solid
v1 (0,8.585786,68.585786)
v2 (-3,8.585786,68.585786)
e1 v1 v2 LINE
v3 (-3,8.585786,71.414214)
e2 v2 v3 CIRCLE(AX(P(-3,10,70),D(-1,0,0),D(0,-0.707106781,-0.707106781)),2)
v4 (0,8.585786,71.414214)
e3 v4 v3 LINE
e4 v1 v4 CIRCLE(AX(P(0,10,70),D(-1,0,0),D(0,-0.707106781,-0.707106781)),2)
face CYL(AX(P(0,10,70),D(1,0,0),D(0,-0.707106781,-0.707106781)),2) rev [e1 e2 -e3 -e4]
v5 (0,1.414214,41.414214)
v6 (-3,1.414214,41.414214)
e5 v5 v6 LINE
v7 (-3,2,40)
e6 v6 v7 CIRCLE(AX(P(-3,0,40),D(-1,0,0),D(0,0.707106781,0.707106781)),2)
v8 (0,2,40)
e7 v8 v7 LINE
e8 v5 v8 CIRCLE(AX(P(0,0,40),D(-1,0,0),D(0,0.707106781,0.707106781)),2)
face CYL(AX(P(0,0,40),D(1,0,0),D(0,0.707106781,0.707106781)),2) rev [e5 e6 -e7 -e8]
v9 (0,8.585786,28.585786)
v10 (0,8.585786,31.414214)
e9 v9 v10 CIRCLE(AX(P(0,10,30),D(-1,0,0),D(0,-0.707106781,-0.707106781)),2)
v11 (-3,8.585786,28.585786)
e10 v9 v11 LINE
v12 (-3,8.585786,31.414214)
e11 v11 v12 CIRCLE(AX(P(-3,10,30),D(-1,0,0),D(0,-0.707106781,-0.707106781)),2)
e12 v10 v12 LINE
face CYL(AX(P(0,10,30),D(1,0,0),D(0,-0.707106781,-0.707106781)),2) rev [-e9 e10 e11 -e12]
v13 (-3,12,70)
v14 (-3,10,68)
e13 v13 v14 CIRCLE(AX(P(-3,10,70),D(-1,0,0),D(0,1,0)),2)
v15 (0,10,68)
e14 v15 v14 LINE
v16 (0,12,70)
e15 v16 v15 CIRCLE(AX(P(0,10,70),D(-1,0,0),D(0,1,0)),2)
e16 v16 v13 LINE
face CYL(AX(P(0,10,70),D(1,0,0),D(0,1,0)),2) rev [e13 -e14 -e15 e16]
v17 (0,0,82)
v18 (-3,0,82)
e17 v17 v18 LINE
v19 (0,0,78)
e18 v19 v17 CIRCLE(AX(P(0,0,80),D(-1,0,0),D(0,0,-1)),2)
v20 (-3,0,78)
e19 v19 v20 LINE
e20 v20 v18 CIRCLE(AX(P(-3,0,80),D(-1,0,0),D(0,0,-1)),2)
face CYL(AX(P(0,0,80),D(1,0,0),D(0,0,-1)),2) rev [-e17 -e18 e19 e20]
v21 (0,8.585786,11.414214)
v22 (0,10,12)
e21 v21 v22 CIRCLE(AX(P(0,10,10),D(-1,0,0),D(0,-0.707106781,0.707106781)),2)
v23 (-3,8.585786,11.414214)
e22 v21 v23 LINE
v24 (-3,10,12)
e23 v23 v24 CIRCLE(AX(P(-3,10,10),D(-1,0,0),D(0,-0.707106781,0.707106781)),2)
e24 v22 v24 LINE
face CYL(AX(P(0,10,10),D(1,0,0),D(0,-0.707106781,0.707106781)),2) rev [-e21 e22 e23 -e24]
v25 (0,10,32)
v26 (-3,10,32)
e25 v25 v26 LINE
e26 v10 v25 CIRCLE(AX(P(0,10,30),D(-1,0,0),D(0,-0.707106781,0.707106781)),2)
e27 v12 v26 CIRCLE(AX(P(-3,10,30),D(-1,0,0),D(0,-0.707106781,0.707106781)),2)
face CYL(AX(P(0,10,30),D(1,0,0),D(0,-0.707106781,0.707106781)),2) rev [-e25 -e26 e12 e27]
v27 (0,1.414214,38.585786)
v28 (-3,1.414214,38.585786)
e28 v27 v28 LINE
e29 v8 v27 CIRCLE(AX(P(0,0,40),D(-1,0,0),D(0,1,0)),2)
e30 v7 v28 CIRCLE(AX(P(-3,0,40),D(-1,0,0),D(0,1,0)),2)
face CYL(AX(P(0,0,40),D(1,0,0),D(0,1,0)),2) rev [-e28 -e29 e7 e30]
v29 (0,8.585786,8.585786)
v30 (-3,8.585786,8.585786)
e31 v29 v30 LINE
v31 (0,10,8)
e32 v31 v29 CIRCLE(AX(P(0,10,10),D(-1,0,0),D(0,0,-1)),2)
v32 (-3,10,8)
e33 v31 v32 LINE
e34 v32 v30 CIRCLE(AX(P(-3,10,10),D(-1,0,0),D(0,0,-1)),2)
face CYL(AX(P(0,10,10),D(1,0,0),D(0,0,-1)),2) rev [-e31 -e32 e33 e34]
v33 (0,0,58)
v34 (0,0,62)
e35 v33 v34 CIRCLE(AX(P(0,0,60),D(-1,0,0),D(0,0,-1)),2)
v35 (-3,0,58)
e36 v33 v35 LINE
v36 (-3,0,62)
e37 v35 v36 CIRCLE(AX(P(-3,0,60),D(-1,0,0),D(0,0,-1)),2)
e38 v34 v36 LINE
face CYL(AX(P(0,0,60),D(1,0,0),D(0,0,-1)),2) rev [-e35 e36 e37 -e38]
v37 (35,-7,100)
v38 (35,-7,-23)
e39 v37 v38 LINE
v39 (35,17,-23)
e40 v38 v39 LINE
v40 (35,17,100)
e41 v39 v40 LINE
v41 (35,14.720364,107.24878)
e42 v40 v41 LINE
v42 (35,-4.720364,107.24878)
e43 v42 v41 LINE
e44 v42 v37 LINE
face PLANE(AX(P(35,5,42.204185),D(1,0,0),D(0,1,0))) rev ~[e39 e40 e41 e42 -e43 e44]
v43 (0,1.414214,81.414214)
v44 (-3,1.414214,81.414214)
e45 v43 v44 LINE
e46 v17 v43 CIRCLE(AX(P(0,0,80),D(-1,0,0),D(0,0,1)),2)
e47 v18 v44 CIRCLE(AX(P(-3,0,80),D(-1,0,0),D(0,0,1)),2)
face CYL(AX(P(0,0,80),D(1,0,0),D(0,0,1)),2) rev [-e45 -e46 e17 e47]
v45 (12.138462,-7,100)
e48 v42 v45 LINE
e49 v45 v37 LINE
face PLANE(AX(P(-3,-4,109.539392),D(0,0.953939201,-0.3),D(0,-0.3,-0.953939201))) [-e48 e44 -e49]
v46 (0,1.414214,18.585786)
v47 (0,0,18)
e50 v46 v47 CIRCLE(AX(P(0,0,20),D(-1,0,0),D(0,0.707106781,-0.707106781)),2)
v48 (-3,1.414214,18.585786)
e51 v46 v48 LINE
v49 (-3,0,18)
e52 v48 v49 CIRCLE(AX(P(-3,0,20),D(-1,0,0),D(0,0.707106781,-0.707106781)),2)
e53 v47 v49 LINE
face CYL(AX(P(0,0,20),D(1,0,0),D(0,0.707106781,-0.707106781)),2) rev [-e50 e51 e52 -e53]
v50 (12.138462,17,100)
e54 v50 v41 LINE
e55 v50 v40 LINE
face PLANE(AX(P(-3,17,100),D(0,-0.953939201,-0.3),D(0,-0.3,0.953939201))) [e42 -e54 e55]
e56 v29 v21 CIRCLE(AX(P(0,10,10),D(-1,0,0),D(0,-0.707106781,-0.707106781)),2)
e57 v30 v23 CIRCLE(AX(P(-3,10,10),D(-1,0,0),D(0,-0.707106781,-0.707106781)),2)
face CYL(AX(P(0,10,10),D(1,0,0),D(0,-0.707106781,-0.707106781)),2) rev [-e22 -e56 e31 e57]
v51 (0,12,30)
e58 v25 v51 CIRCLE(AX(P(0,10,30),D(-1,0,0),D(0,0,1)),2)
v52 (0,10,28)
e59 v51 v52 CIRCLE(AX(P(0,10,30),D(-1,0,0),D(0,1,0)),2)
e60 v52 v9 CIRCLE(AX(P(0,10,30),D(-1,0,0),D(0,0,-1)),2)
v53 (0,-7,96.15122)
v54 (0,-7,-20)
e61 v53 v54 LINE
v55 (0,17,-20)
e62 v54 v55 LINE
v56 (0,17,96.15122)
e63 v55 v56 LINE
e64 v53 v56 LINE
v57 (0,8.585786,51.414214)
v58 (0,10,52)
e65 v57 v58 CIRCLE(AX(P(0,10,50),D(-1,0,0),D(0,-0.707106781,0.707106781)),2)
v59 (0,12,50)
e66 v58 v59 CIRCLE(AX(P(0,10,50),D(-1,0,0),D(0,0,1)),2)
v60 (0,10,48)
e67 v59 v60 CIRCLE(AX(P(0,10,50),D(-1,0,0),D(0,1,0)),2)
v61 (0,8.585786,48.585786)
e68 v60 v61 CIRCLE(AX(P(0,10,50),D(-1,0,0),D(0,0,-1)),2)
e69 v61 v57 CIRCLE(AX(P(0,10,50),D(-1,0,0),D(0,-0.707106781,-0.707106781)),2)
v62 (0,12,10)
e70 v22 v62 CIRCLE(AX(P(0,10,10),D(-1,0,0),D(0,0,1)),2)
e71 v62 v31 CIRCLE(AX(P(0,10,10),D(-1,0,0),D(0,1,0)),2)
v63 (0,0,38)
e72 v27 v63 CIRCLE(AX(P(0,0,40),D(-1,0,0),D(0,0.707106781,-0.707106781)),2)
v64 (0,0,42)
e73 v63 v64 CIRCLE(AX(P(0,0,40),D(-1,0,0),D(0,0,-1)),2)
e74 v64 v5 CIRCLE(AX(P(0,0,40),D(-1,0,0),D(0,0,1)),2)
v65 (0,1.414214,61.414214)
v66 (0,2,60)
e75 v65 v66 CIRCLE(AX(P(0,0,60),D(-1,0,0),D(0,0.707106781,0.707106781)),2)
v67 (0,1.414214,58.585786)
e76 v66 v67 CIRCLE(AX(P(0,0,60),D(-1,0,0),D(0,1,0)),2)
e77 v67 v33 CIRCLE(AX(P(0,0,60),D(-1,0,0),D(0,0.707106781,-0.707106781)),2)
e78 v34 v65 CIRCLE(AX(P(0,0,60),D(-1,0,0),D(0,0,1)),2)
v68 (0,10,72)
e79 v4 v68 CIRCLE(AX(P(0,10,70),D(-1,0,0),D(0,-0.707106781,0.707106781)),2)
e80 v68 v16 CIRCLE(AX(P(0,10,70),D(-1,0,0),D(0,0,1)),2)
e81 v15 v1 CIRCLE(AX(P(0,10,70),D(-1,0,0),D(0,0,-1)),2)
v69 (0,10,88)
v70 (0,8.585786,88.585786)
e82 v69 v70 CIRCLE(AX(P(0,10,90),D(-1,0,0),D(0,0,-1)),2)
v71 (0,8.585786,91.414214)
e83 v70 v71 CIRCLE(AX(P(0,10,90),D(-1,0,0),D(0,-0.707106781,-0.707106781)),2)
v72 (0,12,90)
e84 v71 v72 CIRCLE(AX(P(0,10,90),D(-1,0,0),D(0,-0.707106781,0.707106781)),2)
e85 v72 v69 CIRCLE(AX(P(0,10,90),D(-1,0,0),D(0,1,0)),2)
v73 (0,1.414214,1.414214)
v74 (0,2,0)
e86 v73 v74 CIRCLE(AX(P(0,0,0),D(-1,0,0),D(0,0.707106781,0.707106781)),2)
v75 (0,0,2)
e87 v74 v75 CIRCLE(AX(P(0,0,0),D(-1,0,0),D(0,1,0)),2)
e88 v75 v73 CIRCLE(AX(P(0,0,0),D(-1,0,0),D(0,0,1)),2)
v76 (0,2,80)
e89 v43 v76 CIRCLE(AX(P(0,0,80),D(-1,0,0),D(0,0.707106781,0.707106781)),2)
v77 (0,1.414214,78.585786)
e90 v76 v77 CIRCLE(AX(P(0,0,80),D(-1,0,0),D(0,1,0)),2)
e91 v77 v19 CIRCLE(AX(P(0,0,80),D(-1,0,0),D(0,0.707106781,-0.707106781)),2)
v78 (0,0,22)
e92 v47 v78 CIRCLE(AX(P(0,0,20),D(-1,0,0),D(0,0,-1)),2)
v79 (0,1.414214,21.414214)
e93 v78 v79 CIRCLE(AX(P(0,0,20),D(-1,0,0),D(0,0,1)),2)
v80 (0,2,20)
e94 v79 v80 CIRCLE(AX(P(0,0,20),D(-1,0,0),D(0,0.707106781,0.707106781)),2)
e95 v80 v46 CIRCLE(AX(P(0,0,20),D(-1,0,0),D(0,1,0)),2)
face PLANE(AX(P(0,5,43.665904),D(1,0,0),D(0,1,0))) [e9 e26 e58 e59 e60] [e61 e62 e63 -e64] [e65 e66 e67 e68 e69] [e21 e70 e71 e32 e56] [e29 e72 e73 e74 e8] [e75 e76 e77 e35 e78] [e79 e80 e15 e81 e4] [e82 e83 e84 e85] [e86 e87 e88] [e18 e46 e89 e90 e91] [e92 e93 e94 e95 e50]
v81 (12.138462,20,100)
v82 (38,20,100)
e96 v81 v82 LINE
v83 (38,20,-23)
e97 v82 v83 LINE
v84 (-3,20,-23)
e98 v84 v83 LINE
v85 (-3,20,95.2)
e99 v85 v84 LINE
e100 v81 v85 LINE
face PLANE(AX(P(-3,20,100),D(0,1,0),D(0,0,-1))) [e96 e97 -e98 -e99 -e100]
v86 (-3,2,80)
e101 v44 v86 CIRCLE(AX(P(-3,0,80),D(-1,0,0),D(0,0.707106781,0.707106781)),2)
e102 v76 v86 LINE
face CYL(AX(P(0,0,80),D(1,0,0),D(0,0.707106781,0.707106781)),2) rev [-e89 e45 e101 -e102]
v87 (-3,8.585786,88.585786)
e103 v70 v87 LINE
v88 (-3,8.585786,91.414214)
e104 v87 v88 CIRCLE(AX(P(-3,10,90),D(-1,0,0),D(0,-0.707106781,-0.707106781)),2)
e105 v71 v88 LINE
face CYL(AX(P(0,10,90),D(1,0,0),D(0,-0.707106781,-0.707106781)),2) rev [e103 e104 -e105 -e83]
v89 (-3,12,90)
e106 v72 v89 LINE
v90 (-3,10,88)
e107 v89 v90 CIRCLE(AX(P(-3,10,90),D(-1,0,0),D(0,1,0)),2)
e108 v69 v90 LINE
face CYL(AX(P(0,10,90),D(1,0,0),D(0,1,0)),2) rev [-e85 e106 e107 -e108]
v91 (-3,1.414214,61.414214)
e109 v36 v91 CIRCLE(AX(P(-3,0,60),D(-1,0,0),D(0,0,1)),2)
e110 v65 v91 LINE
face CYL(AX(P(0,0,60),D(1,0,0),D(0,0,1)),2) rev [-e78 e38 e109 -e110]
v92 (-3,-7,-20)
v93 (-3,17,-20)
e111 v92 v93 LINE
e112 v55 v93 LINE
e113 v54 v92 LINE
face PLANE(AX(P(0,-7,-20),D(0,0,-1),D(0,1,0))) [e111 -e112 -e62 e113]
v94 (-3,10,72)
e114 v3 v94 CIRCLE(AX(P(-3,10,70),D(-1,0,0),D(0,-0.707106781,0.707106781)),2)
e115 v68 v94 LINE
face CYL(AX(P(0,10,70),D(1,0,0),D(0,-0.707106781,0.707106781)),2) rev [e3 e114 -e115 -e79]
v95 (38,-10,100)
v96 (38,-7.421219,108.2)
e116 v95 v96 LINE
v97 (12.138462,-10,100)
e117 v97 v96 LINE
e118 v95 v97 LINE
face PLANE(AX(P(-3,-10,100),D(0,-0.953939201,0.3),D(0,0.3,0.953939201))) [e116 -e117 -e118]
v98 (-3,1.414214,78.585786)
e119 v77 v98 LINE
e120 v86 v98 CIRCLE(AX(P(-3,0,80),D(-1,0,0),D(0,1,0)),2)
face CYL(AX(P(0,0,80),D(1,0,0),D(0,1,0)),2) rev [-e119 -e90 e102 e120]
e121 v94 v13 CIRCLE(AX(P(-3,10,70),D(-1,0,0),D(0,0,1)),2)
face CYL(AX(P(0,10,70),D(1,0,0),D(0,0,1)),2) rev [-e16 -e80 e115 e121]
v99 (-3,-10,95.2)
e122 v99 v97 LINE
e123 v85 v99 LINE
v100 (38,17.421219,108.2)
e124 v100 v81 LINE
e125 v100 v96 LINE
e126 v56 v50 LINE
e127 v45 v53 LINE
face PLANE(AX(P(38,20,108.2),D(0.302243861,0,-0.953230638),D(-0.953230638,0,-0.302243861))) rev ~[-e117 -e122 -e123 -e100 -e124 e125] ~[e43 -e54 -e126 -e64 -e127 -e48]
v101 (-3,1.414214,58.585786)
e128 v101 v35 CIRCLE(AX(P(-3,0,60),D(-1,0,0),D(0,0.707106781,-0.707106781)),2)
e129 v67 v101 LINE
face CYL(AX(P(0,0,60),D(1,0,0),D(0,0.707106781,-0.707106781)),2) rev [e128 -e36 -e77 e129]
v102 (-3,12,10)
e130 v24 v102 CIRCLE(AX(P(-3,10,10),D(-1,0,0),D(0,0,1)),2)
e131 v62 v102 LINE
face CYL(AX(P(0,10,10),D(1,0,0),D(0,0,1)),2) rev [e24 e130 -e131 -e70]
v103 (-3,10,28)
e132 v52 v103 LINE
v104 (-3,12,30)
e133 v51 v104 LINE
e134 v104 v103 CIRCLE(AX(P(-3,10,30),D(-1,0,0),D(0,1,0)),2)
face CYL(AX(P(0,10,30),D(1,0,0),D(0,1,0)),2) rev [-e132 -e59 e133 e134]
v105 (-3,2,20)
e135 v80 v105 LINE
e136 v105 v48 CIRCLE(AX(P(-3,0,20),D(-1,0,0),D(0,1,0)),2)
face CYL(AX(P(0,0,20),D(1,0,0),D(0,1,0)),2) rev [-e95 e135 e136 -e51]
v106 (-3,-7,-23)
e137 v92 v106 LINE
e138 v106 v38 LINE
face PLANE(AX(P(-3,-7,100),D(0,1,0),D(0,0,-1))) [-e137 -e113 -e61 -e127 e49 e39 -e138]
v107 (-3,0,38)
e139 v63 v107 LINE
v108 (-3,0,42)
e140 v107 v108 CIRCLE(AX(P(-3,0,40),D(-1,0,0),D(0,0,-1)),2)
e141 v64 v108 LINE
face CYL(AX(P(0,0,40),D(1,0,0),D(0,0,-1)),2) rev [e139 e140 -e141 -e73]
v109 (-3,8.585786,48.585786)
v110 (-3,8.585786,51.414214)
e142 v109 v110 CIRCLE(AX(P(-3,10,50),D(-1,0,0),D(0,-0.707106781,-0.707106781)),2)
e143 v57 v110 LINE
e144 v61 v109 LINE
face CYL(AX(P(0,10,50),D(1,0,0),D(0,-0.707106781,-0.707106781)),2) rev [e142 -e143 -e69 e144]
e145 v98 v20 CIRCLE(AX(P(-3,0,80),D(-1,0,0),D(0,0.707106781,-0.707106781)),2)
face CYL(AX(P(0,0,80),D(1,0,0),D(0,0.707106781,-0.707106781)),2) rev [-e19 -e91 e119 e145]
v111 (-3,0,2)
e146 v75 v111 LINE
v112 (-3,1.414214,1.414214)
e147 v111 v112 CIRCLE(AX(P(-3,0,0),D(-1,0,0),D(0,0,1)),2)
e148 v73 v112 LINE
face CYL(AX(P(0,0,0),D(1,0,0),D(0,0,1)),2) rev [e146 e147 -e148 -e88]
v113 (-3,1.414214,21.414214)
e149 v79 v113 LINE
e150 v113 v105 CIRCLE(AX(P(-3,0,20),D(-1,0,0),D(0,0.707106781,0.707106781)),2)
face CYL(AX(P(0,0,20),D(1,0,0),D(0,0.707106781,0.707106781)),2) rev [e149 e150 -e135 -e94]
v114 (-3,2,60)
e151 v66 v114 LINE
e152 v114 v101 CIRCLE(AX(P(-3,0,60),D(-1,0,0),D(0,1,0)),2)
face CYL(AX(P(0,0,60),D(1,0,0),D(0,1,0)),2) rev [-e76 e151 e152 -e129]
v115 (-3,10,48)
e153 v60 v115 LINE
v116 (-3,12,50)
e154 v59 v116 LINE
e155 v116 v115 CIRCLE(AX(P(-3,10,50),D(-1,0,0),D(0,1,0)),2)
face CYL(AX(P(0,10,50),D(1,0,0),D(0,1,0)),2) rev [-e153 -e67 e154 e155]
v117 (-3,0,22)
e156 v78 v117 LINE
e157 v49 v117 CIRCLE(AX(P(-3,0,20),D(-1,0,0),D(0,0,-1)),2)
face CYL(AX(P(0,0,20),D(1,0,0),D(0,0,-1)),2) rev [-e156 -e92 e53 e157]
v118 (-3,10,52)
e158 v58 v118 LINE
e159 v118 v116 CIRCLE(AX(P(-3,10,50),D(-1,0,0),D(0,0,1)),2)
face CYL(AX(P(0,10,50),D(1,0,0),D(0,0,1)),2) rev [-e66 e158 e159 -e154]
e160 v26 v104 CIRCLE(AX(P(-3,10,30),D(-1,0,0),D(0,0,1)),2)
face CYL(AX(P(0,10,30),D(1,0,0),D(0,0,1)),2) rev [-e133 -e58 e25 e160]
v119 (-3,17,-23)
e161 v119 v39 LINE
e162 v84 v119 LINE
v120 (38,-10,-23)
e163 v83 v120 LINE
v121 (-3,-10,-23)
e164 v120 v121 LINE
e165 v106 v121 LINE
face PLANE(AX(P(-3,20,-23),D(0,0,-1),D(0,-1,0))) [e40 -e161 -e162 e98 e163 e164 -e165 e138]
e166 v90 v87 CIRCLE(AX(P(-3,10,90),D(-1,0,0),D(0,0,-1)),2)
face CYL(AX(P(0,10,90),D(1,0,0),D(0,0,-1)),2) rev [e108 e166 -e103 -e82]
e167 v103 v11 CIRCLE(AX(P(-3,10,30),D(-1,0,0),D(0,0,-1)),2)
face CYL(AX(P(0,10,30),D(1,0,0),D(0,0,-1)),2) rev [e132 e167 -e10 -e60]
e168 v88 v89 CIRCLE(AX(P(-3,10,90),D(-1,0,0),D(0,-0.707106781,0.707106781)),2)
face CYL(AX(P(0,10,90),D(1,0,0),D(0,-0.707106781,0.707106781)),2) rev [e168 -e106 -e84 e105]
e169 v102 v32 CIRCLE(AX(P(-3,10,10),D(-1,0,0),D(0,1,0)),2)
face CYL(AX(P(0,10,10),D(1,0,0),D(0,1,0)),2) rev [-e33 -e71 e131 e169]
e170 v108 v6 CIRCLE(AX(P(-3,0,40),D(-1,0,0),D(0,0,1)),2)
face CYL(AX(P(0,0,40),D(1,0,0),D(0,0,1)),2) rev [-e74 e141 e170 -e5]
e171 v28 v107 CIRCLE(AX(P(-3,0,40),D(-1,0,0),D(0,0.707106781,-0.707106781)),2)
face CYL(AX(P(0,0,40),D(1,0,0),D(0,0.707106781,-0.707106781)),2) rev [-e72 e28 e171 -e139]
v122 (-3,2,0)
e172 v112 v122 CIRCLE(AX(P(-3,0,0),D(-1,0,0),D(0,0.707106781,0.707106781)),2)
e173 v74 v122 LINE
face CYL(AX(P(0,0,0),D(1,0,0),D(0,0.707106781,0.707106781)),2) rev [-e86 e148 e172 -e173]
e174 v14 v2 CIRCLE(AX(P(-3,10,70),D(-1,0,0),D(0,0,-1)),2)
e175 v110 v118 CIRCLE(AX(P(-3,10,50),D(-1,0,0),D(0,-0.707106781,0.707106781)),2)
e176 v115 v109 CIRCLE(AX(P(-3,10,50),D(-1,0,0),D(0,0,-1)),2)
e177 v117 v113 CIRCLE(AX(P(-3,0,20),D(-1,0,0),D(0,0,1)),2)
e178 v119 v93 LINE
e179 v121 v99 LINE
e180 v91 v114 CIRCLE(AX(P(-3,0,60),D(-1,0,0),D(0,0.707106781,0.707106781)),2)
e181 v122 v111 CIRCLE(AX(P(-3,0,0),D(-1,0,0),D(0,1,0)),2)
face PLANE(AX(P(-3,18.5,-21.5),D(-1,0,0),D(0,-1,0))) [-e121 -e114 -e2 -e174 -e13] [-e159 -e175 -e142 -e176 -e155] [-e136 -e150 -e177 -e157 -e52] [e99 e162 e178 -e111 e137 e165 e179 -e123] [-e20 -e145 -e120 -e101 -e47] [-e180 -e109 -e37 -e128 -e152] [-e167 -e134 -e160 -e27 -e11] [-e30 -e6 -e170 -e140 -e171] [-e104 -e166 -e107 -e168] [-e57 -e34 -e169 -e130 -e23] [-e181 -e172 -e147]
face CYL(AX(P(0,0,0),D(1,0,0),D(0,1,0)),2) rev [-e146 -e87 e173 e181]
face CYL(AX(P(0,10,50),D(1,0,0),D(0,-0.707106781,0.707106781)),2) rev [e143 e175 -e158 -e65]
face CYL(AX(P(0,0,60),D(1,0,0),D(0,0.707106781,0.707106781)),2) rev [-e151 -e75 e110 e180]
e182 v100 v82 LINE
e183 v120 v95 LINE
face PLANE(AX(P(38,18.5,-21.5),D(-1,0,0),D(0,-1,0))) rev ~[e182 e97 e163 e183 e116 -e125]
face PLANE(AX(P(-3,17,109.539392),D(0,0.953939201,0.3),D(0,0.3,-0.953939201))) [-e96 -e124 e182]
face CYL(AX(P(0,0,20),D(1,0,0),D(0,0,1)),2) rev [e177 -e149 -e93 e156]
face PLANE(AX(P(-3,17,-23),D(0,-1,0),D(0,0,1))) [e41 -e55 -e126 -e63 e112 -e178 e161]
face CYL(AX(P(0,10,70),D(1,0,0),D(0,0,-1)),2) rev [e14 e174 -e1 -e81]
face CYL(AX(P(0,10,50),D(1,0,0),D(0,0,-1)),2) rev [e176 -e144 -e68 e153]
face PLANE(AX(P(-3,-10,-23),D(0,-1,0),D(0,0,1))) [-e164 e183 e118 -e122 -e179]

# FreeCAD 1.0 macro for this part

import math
import FreeCAD as App
import Part
import Sketcher


def add_polygon(sketch, points):
    """Adds a closed chain of lines whose ends are joined by coincident constraints."""
    first, n = sketch.GeometryCount, len(points)
    for a, b in zip(points, points[1:] + points[:1]):
        sketch.addGeometry(Part.LineSegment(App.Vector(*a, 0), App.Vector(*b, 0)), False)
    for i in range(n):
        sketch.addConstraint(Sketcher.Constraint("Coincident", first + i, 2, first + (i + 1) % n, 1))

doc = App.newDocument("Part")
params = doc.addObject("Spreadsheet::Sheet", "Params")
for row, (alias, value) in enumerate([
    ("sketch1_radius", "2 mm"),
    ("sketch1_width", "24 mm"),
    ("sketch1_width2", "18 mm"),
    ("sketch1_height", "120 mm"),
    ("sketch1_length", "10 mm"),
    ("pad1_length", "3 mm"),
    ("sketch2_width", "3 mm"),
    ("sketch2_height", "123 mm"),
    ("sketch2_length", "10 mm"),
    ("pad2_length", "41 mm"),
    ("sketch3_width", "24 mm"),
    ("sketch3_width2", "30 mm"),
    ("sketch3_height", "123 mm"),
    ("sketch3_length", "10 mm"),
    ("pad3_length", "3 mm"),
    ("sketch4_width", "41 mm"),
    ("sketch4_height", "14.8 mm"),
    ("sketch4_height2", "1.8 mm"),
    ("pocket1_length", "39.6 mm"),
], start=1):
    params.set(f"A{row}", alias)
    params.set(f"B{row}", "=" + value)
    params.setAlias(f"B{row}", alias)

body = doc.addObject("PartDesign::Body", "Body")

sketch1 = body.newObject("Sketcher::SketchObject", "Sketch")
sketch1.AttachmentSupport = (doc.getObject("YZ_Plane"), [""])
sketch1.MapMode = "FlatFace"
add_polygon(sketch1, [(-7, -20), (17, -20), (17, 100), (14, 109.5), (-4, 109.5), (-7, 100)])
sketch1.addGeometry(Part.ArcOfCircle(Part.Circle(App.Vector(10, 30, 0), App.Vector(0, 0, 1), 2), math.radians(-90), math.radians(0)), False)
sketch1.addGeometry(Part.ArcOfCircle(Part.Circle(App.Vector(10, 30, 0), App.Vector(0, 0, 1), 2), math.radians(-135), math.radians(-90)), False)
sketch1.addGeometry(Part.ArcOfCircle(Part.Circle(App.Vector(10, 30, 0), App.Vector(0, 0, 1), 2), math.radians(135), math.radians(225)), False)
sketch1.addGeometry(Part.ArcOfCircle(Part.Circle(App.Vector(10, 30, 0), App.Vector(0, 0, 1), 2), math.radians(90), math.radians(135)), False)
sketch1.addGeometry(Part.ArcOfCircle(Part.Circle(App.Vector(10, 30, 0), App.Vector(0, 0, 1), 2), math.radians(0), math.radians(90)), False)
sketch1.addGeometry(Part.ArcOfCircle(Part.Circle(App.Vector(0, 40, 0), App.Vector(0, 0, 1), 2), math.radians(-90), math.radians(-45)), False)
sketch1.addGeometry(Part.ArcOfCircle(Part.Circle(App.Vector(0, 40, 0), App.Vector(0, 0, 1), 2), math.radians(90), math.radians(270)), False)
sketch1.addGeometry(Part.ArcOfCircle(Part.Circle(App.Vector(0, 40, 0), App.Vector(0, 0, 1), 2), math.radians(45), math.radians(90)), False)
sketch1.addGeometry(Part.ArcOfCircle(Part.Circle(App.Vector(0, 40, 0), App.Vector(0, 0, 1), 2), math.radians(0), math.radians(45)), False)
sketch1.addGeometry(Part.ArcOfCircle(Part.Circle(App.Vector(0, 40, 0), App.Vector(0, 0, 1), 2), math.radians(-45), math.radians(0)), False)
sketch1.addGeometry(Part.ArcOfCircle(Part.Circle(App.Vector(0, 60, 0), App.Vector(0, 0, 1), 2), math.radians(90), math.radians(270)), False)
sketch1.addGeometry(Part.ArcOfCircle(Part.Circle(App.Vector(0, 60, 0), App.Vector(0, 0, 1), 2), math.radians(45), math.radians(90)), False)
sketch1.addGeometry(Part.ArcOfCircle(Part.Circle(App.Vector(0, 60, 0), App.Vector(0, 0, 1), 2), math.radians(0), math.radians(45)), False)
sketch1.addGeometry(Part.ArcOfCircle(Part.Circle(App.Vector(0, 60, 0), App.Vector(0, 0, 1), 2), math.radians(-45), math.radians(0)), False)
sketch1.addGeometry(Part.ArcOfCircle(Part.Circle(App.Vector(0, 60, 0), App.Vector(0, 0, 1), 2), math.radians(-90), math.radians(-45)), False)
sketch1.addGeometry(Part.ArcOfCircle(Part.Circle(App.Vector(0, 80, 0), App.Vector(0, 0, 1), 2), math.radians(90), math.radians(270)), False)
sketch1.addGeometry(Part.ArcOfCircle(Part.Circle(App.Vector(0, 80, 0), App.Vector(0, 0, 1), 2), math.radians(45), math.radians(90)), False)
sketch1.addGeometry(Part.ArcOfCircle(Part.Circle(App.Vector(0, 80, 0), App.Vector(0, 0, 1), 2), math.radians(0), math.radians(45)), False)
sketch1.addGeometry(Part.ArcOfCircle(Part.Circle(App.Vector(0, 80, 0), App.Vector(0, 0, 1), 2), math.radians(-45), math.radians(0)), False)
sketch1.addGeometry(Part.ArcOfCircle(Part.Circle(App.Vector(0, 80, 0), App.Vector(0, 0, 1), 2), math.radians(-90), math.radians(-45)), False)
sketch1.addGeometry(Part.ArcOfCircle(Part.Circle(App.Vector(0, 100, 0), App.Vector(0, 0, 1), 2), math.radians(0), math.radians(270)), False)
sketch1.addGeometry(Part.ArcOfCircle(Part.Circle(App.Vector(0, 100, 0), App.Vector(0, 0, 1), 2), math.radians(-45), math.radians(0)), False)
sketch1.addGeometry(Part.ArcOfCircle(Part.Circle(App.Vector(0, 100, 0), App.Vector(0, 0, 1), 2), math.radians(-90), math.radians(-45)), False)
sketch1.addGeometry(Part.ArcOfCircle(Part.Circle(App.Vector(10, 90, 0), App.Vector(0, 0, 1), 2), math.radians(0), math.radians(135)), False)
sketch1.addGeometry(Part.ArcOfCircle(Part.Circle(App.Vector(10, 90, 0), App.Vector(0, 0, 1), 2), math.radians(-90), math.radians(0)), False)
sketch1.addGeometry(Part.ArcOfCircle(Part.Circle(App.Vector(10, 90, 0), App.Vector(0, 0, 1), 2), math.radians(-135), math.radians(-90)), False)
sketch1.addGeometry(Part.ArcOfCircle(Part.Circle(App.Vector(10, 90, 0), App.Vector(0, 0, 1), 2), math.radians(135), math.radians(225)), False)
sketch1.addGeometry(Part.ArcOfCircle(Part.Circle(App.Vector(10, 70, 0), App.Vector(0, 0, 1), 2), math.radians(0), math.radians(90)), False)
sketch1.addGeometry(Part.ArcOfCircle(Part.Circle(App.Vector(10, 70, 0), App.Vector(0, 0, 1), 2), math.radians(-90), math.radians(0)), False)
sketch1.addGeometry(Part.ArcOfCircle(Part.Circle(App.Vector(10, 70, 0), App.Vector(0, 0, 1), 2), math.radians(-135), math.radians(-90)), False)
sketch1.addGeometry(Part.ArcOfCircle(Part.Circle(App.Vector(10, 70, 0), App.Vector(0, 0, 1), 2), math.radians(135), math.radians(225)), False)
sketch1.addGeometry(Part.ArcOfCircle(Part.Circle(App.Vector(10, 70, 0), App.Vector(0, 0, 1), 2), math.radians(90), math.radians(135)), False)
sketch1.addGeometry(Part.ArcOfCircle(Part.Circle(App.Vector(10, 50, 0), App.Vector(0, 0, 1), 2), math.radians(0), math.radians(90)), False)
sketch1.addGeometry(Part.ArcOfCircle(Part.Circle(App.Vector(10, 50, 0), App.Vector(0, 0, 1), 2), math.radians(-90), math.radians(0)), False)
sketch1.addGeometry(Part.ArcOfCircle(Part.Circle(App.Vector(10, 50, 0), App.Vector(0, 0, 1), 2), math.radians(-135), math.radians(-90)), False)
sketch1.addGeometry(Part.ArcOfCircle(Part.Circle(App.Vector(10, 50, 0), App.Vector(0, 0, 1), 2), math.radians(135), math.radians(225)), False)
sketch1.addGeometry(Part.ArcOfCircle(Part.Circle(App.Vector(10, 50, 0), App.Vector(0, 0, 1), 2), math.radians(90), math.radians(135)), False)
sketch1.addGeometry(Part.ArcOfCircle(Part.Circle(App.Vector(0, 20, 0), App.Vector(0, 0, 1), 2), math.radians(0), math.radians(45)), False)
sketch1.addGeometry(Part.ArcOfCircle(Part.Circle(App.Vector(0, 20, 0), App.Vector(0, 0, 1), 2), math.radians(-45), math.radians(0)), False)
sketch1.addGeometry(Part.ArcOfCircle(Part.Circle(App.Vector(0, 20, 0), App.Vector(0, 0, 1), 2), math.radians(-90), math.radians(-45)), False)
sketch1.addGeometry(Part.ArcOfCircle(Part.Circle(App.Vector(0, 20, 0), App.Vector(0, 0, 1), 2), math.radians(90), math.radians(270)), False)
sketch1.addGeometry(Part.ArcOfCircle(Part.Circle(App.Vector(0, 20, 0), App.Vector(0, 0, 1), 2), math.radians(45), math.radians(90)), False)
sketch1.addGeometry(Part.ArcOfCircle(Part.Circle(App.Vector(10, 10, 0), App.Vector(0, 0, 1), 2), math.radians(0), math.radians(90)), False)
sketch1.addGeometry(Part.ArcOfCircle(Part.Circle(App.Vector(10, 10, 0), App.Vector(0, 0, 1), 2), math.radians(-90), math.radians(0)), False)
sketch1.addGeometry(Part.ArcOfCircle(Part.Circle(App.Vector(10, 10, 0), App.Vector(0, 0, 1), 2), math.radians(-135), math.radians(-90)), False)
sketch1.addGeometry(Part.ArcOfCircle(Part.Circle(App.Vector(10, 10, 0), App.Vector(0, 0, 1), 2), math.radians(135), math.radians(225)), False)
sketch1.addGeometry(Part.ArcOfCircle(Part.Circle(App.Vector(10, 10, 0), App.Vector(0, 0, 1), 2), math.radians(90), math.radians(135)), False)
sketch1.addGeometry(Part.ArcOfCircle(Part.Circle(App.Vector(0, 0, 0), App.Vector(0, 0, 1), 2), math.radians(90), math.radians(360)), False)
sketch1.addGeometry(Part.ArcOfCircle(Part.Circle(App.Vector(0, 0, 0), App.Vector(0, 0, 1), 2), math.radians(45), math.radians(90)), False)
sketch1.addGeometry(Part.ArcOfCircle(Part.Circle(App.Vector(0, 0, 0), App.Vector(0, 0, 1), 2), math.radians(0), math.radians(45)), False)
sketch1.addConstraint(Sketcher.Constraint("Tangent", 6, 1, 7, 2))
sketch1.addConstraint(Sketcher.Constraint("Tangent", 7, 1, 8, 2))
sketch1.addConstraint(Sketcher.Constraint("Tangent", 8, 1, 9, 2))
sketch1.addConstraint(Sketcher.Constraint("Tangent", 9, 1, 10, 2))
sketch1.addConstraint(Sketcher.Constraint("Tangent", 10, 1, 6, 2))
sketch1.addConstraint(Sketcher.Constraint("Tangent", 11, 1, 12, 2))
sketch1.addConstraint(Sketcher.Constraint("Tangent", 12, 1, 13, 2))
sketch1.addConstraint(Sketcher.Constraint("Tangent", 13, 1, 14, 2))
sketch1.addConstraint(Sketcher.Constraint("Tangent", 14, 1, 15, 2))
sketch1.addConstraint(Sketcher.Constraint("Tangent", 15, 1, 11, 2))
sketch1.addConstraint(Sketcher.Constraint("Tangent", 16, 1, 17, 2))
sketch1.addConstraint(Sketcher.Constraint("Tangent", 17, 1, 18, 2))
sketch1.addConstraint(Sketcher.Constraint("Tangent", 18, 1, 19, 2))
sketch1.addConstraint(Sketcher.Constraint("Tangent", 19, 1, 20, 2))
sketch1.addConstraint(Sketcher.Constraint("Tangent", 20, 1, 16, 2))
sketch1.addConstraint(Sketcher.Constraint("Tangent", 21, 1, 22, 2))
sketch1.addConstraint(Sketcher.Constraint("Tangent", 22, 1, 23, 2))
sketch1.addConstraint(Sketcher.Constraint("Tangent", 23, 1, 24, 2))
sketch1.addConstraint(Sketcher.Constraint("Tangent", 24, 1, 25, 2))
sketch1.addConstraint(Sketcher.Constraint("Tangent", 25, 1, 21, 2))
sketch1.addConstraint(Sketcher.Constraint("Tangent", 26, 1, 27, 2))
sketch1.addConstraint(Sketcher.Constraint("Tangent", 27, 1, 28, 2))
sketch1.addConstraint(Sketcher.Constraint("Tangent", 28, 1, 26, 2))
sketch1.addConstraint(Sketcher.Constraint("Tangent", 29, 1, 30, 2))
sketch1.addConstraint(Sketcher.Constraint("Tangent", 30, 1, 31, 2))
sketch1.addConstraint(Sketcher.Constraint("Tangent", 31, 1, 32, 2))
sketch1.addConstraint(Sketcher.Constraint("Tangent", 32, 1, 29, 2))
sketch1.addConstraint(Sketcher.Constraint("Tangent", 33, 1, 34, 2))
sketch1.addConstraint(Sketcher.Constraint("Tangent", 34, 1, 35, 2))
sketch1.addConstraint(Sketcher.Constraint("Tangent", 35, 1, 36, 2))
sketch1.addConstraint(Sketcher.Constraint("Tangent", 36, 1, 37, 2))
sketch1.addConstraint(Sketcher.Constraint("Tangent", 37, 1, 33, 2))
sketch1.addConstraint(Sketcher.Constraint("Tangent", 38, 1, 39, 2))
sketch1.addConstraint(Sketcher.Constraint("Tangent", 39, 1, 40, 2))
sketch1.addConstraint(Sketcher.Constraint("Tangent", 40, 1, 41, 2))
sketch1.addConstraint(Sketcher.Constraint("Tangent", 41, 1, 42, 2))
sketch1.addConstraint(Sketcher.Constraint("Tangent", 42, 1, 38, 2))
sketch1.addConstraint(Sketcher.Constraint("Tangent", 43, 1, 44, 2))
sketch1.addConstraint(Sketcher.Constraint("Tangent", 44, 1, 45, 2))
sketch1.addConstraint(Sketcher.Constraint("Tangent", 45, 1, 46, 2))
sketch1.addConstraint(Sketcher.Constraint("Tangent", 46, 1, 47, 2))
sketch1.addConstraint(Sketcher.Constraint("Tangent", 47, 1, 43, 2))
sketch1.addConstraint(Sketcher.Constraint("Tangent", 48, 1, 49, 2))
sketch1.addConstraint(Sketcher.Constraint("Tangent", 49, 1, 50, 2))
sketch1.addConstraint(Sketcher.Constraint("Tangent", 50, 1, 51, 2))
sketch1.addConstraint(Sketcher.Constraint("Tangent", 51, 1, 52, 2))
sketch1.addConstraint(Sketcher.Constraint("Tangent", 52, 1, 48, 2))
sketch1.addConstraint(Sketcher.Constraint("Tangent", 53, 1, 54, 2))
sketch1.addConstraint(Sketcher.Constraint("Tangent", 54, 1, 55, 2))
sketch1.addConstraint(Sketcher.Constraint("Tangent", 55, 1, 53, 2))
sketch1.addConstraint(Sketcher.Constraint("Horizontal", 0))
sketch1.addConstraint(Sketcher.Constraint("Vertical", 1))
sketch1.addConstraint(Sketcher.Constraint("Horizontal", 3))
sketch1.addConstraint(Sketcher.Constraint("Vertical", 5))
sketch1.addConstraint(Sketcher.Constraint("Coincident", 53, 3, -1, 1))
sketch1.addConstraint(Sketcher.Constraint("Coincident", 8, 3, 6, 3))
sketch1.addConstraint(Sketcher.Constraint("Coincident", 14, 3, 11, 3))
sketch1.addConstraint(Sketcher.Constraint("Coincident", 18, 3, 16, 3))
sketch1.addConstraint(Sketcher.Constraint("Coincident", 23, 3, 21, 3))
sketch1.addConstraint(Sketcher.Constraint("Coincident", 35, 3, 33, 3))
sketch1.addConstraint(Sketcher.Constraint("Coincident", 40, 3, 38, 3))
sketch1.addConstraint(Sketcher.Constraint("Coincident", 45, 3, 43, 3))
sketch1.addConstraint(Sketcher.Constraint("Coincident", 50, 3, 48, 3))
sketch1.addConstraint(Sketcher.Constraint("Equal", 10, 11))
sketch1.addConstraint(Sketcher.Constraint("Equal", 15, 16))
sketch1.addConstraint(Sketcher.Constraint("Equal", 20, 21))
sketch1.addConstraint(Sketcher.Constraint("Equal", 25, 26))
sketch1.addConstraint(Sketcher.Constraint("Equal", 28, 29))
sketch1.addConstraint(Sketcher.Constraint("Equal", 29, 30))
sketch1.addConstraint(Sketcher.Constraint("Equal", 32, 33))
sketch1.addConstraint(Sketcher.Constraint("Equal", 37, 38))
sketch1.addConstraint(Sketcher.Constraint("Equal", 42, 43))
sketch1.addConstraint(Sketcher.Constraint("Equal", 47, 48))
sketch1.addConstraint(Sketcher.Constraint("Equal", 52, 53))
sketch1.addConstraint(Sketcher.Constraint("PointOnObject", 11, 3, -2))
sketch1.addConstraint(Sketcher.Constraint("PointOnObject", 16, 3, -2))
sketch1.addConstraint(Sketcher.Constraint("PointOnObject", 21, 3, -2))
sketch1.addConstraint(Sketcher.Constraint("PointOnObject", 26, 3, -2))
sketch1.addConstraint(Sketcher.Constraint("PointOnObject", 43, 3, -2))
sketch1.addConstraint(Sketcher.Constraint("PointOnObject", 11, 1, -2))
sketch1.addConstraint(Sketcher.Constraint("PointOnObject", 12, 1, -2))
sketch1.addConstraint(Sketcher.Constraint("PointOnObject", 16, 1, -2))
sketch1.addConstraint(Sketcher.Constraint("PointOnObject", 20, 1, -2))
sketch1.addConstraint(Sketcher.Constraint("PointOnObject", 21, 1, -2))
sketch1.addConstraint(Sketcher.Constraint("PointOnObject", 25, 1, -2))
sketch1.addConstraint(Sketcher.Constraint("PointOnObject", 28, 1, -2))
sketch1.addConstraint(Sketcher.Constraint("PointOnObject", 45, 1, -2))
sketch1.addConstraint(Sketcher.Constraint("PointOnObject", 46, 1, -2))
sketch1.addConstraint(Sketcher.Constraint("PointOnObject", 53, 1, -2))
sketch1.addConstraint(Sketcher.Constraint("PointOnObject", 55, 1, -1))
sketch1.addConstraint(Sketcher.Constraint("Horizontal", 28, 3, 1, 2))
sketch1.addConstraint(Sketcher.Constraint("Horizontal", 1, 2, 4, 2))
sketch1.addConstraint(Sketcher.Constraint("Horizontal", 9, 3, 10, 1))
sketch1.addConstraint(Sketcher.Constraint("Horizontal", 15, 3, 14, 1))
sketch1.addConstraint(Sketcher.Constraint("Horizontal", 20, 3, 18, 1))
sketch1.addConstraint(Sketcher.Constraint("Horizontal", 25, 3, 23, 1))
sketch1.addConstraint(Sketcher.Constraint("Horizontal", 4, 2, 26, 1))
sketch1.addConstraint(Sketcher.Constraint("Horizontal", 32, 3, 29, 1))
sketch1.addConstraint(Sketcher.Constraint("Horizontal", 37, 3, 33, 1))
sketch1.addConstraint(Sketcher.Constraint("Horizontal", 42, 3, 38, 1))
sketch1.addConstraint(Sketcher.Constraint("Horizontal", 47, 3, 43, 1))
sketch1.addConstraint(Sketcher.Constraint("Horizontal", 52, 3, 48, 1))
sketch1.addConstraint(Sketcher.Constraint("Vertical", 10, 3, 29, 3))
sketch1.addConstraint(Sketcher.Constraint("Vertical", 32, 3, 33, 3))
sketch1.addConstraint(Sketcher.Constraint("Vertical", 37, 3, 38, 3))
sketch1.addConstraint(Sketcher.Constraint("Vertical", 42, 3, 48, 3))
sketch1.addConstraint(Sketcher.Constraint("Vertical", 52, 3, 6, 1))
sketch1.addConstraint(Sketcher.Constraint("Vertical", 7, 1, 8, 1))
sketch1.addConstraint(Sketcher.Constraint("Vertical", 6, 1, 9, 1))
sketch1.addConstraint(Sketcher.Constraint("Vertical", 13, 1, 15, 1))
sketch1.addConstraint(Sketcher.Constraint("Vertical", 15, 1, 17, 1))
sketch1.addConstraint(Sketcher.Constraint("Vertical", 17, 1, 19, 1))
sketch1.addConstraint(Sketcher.Constraint("Vertical", 19, 1, 22, 1))
sketch1.addConstraint(Sketcher.Constraint("Vertical", 22, 1, 24, 1))
sketch1.addConstraint(Sketcher.Constraint("Vertical", 24, 1, 27, 1))
sketch1.addConstraint(Sketcher.Constraint("Vertical", 9, 1, 30, 1))
sketch1.addConstraint(Sketcher.Constraint("Vertical", 8, 1, 31, 1))
sketch1.addConstraint(Sketcher.Constraint("Vertical", 31, 1, 32, 1))
sketch1.addConstraint(Sketcher.Constraint("Vertical", 30, 1, 34, 1))
sketch1.addConstraint(Sketcher.Constraint("Vertical", 32, 1, 35, 1))
sketch1.addConstraint(Sketcher.Constraint("Vertical", 35, 1, 36, 1))
sketch1.addConstraint(Sketcher.Constraint("Vertical", 34, 1, 37, 1))
sketch1.addConstraint(Sketcher.Constraint("Vertical", 37, 1, 39, 1))
sketch1.addConstraint(Sketcher.Constraint("Vertical", 36, 1, 40, 1))
sketch1.addConstraint(Sketcher.Constraint("Vertical", 40, 1, 41, 1))
sketch1.addConstraint(Sketcher.Constraint("Vertical", 39, 1, 42, 1))
sketch1.addConstraint(Sketcher.Constraint("Vertical", 27, 1, 44, 1))
sketch1.addConstraint(Sketcher.Constraint("Vertical", 44, 1, 47, 1))
sketch1.addConstraint(Sketcher.Constraint("Vertical", 42, 1, 49, 1))
sketch1.addConstraint(Sketcher.Constraint("Vertical", 41, 1, 50, 1))
sketch1.addConstraint(Sketcher.Constraint("Vertical", 50, 1, 51, 1))
sketch1.addConstraint(Sketcher.Constraint("Vertical", 49, 1, 52, 1))
sketch1.addConstraint(Sketcher.Constraint("Vertical", 47, 1, 54, 1))
sketch1.addConstraint(Sketcher.Constraint("Equal", 2, 4))
sketch1.addConstraint(Sketcher.Constraint("Radius", 6, 2.0))
sketch1.addConstraint(Sketcher.Constraint("DistanceX", 0, 1, 0, 2, 24.0))
sketch1.addConstraint(Sketcher.Constraint("DistanceX", 3, 2, 3, 1, 18.0))
sketch1.addConstraint(Sketcher.Constraint("DistanceY", 1, 1, 1, 2, 120.0))
sketch1.addConstraint(Sketcher.Constraint("Distance", 2, 10.0))
sketch1.addConstraint(Sketcher.Constraint("DistanceX", -1, 1, 6, 3, 10.0))
sketch1.addConstraint(Sketcher.Constraint("DistanceY", -1, 1, 6, 3, 30.0))
sketch1.addConstraint(Sketcher.Constraint("DistanceY", -1, 1, 11, 3, 40.0))
sketch1.addConstraint(Sketcher.Constraint("DistanceY", -1, 1, 16, 3, 60.0))
sketch1.addConstraint(Sketcher.Constraint("DistanceY", -1, 1, 21, 3, 80.0))
sketch1.addConstraint(Sketcher.Constraint("DistanceY", -1, 1, 26, 3, 100.0))
sketch1.addConstraint(Sketcher.Constraint("DistanceY", -1, 1, 29, 3, 90.0))
sketch1.addConstraint(Sketcher.Constraint("DistanceY", -1, 1, 33, 3, 70.0))
sketch1.addConstraint(Sketcher.Constraint("DistanceY", -1, 1, 38, 3, 50.0))
sketch1.addConstraint(Sketcher.Constraint("DistanceY", -1, 1, 43, 3, 20.0))
sketch1.addConstraint(Sketcher.Constraint("DistanceY", -1, 1, 48, 3, 10.0))
sketch1.addConstraint(Sketcher.Constraint("DistanceX", -1, 1, 0, 2, 17.0))
sketch1.addConstraint(Sketcher.Constraint("DistanceX", -1, 1, 7, 1, 8.585786))
sketch1.addConstraint(Sketcher.Constraint("DistanceX", -1, 1, 13, 1, 1.414214))
sketch1.setExpression("Constraints[140]", "Params.sketch1_radius")
sketch1.setExpression("Constraints[141]", "Params.sketch1_width")
sketch1.setExpression("Constraints[142]", "Params.sketch1_width2")
sketch1.setExpression("Constraints[143]", "Params.sketch1_height")
sketch1.setExpression("Constraints[144]", "Params.sketch1_length")
pad1 = body.newObject("PartDesign::Pad", "Pad")
pad1.Profile = sketch1
pad1.setExpression("Length", "Params.pad1_length")
pad1.Reversed = True

sketch2 = body.newObject("Sketcher::SketchObject", "Sketch001")
sketch2.AttachmentSupport = (doc.getObject("YZ_Plane"), [""])
sketch2.MapMode = "FlatFace"
sketch2.AttachmentOffset = App.Placement(App.Vector(0, 0, -3), App.Rotation())
add_polygon(sketch2, [(20, -23), (17, -23), (17, 100), (14, 109.5), (17, 109.5), (20, 100)])
add_polygon(sketch2, [(-7, 109.5), (-4, 109.5), (-7, 100), (-7, -23), (-10, -23), (-10, 100)])
sketch2.addConstraint(Sketcher.Constraint("Horizontal", 0))
sketch2.addConstraint(Sketcher.Constraint("Vertical", 1))
sketch2.addConstraint(Sketcher.Constraint("Horizontal", 3))
sketch2.addConstraint(Sketcher.Constraint("Vertical", 5))
sketch2.addConstraint(Sketcher.Constraint("Horizontal", 6))
sketch2.addConstraint(Sketcher.Constraint("Vertical", 8))
sketch2.addConstraint(Sketcher.Constraint("Horizontal", 9))
sketch2.addConstraint(Sketcher.Constraint("Vertical", 10))
sketch2.addConstraint(Sketcher.Constraint("Parallel", 2, 4))
sketch2.addConstraint(Sketcher.Constraint("Parallel", 7, 11))
sketch2.addConstraint(Sketcher.Constraint("Horizontal", 1, 2, 4, 2))
sketch2.addConstraint(Sketcher.Constraint("Horizontal", 3, 2, 6, 2))
sketch2.addConstraint(Sketcher.Constraint("Horizontal", 4, 2, 7, 2))
sketch2.addConstraint(Sketcher.Constraint("Horizontal", 5, 2, 8, 2))
sketch2.addConstraint(Sketcher.Constraint("Horizontal", 7, 2, 10, 2))
sketch2.addConstraint(Sketcher.Constraint("Vertical", 1, 2, 3, 2))
sketch2.addConstraint(Sketcher.Constraint("Vertical", 8, 2, 11, 2))
sketch2.addConstraint(Sketcher.Constraint("Equal", 3, 6))
sketch2.addConstraint(Sketcher.Constraint("DistanceX", 0, 2, 0, 1, 3.0))
sketch2.addConstraint(Sketcher.Constraint("DistanceY", 1, 1, 1, 2, 123.0))
sketch2.addConstraint(Sketcher.Constraint("Distance", 2, 10.0))
sketch2.addConstraint(Sketcher.Constraint("DistanceX", -1, 1, 0, 2, 17.0))
sketch2.addConstraint(Sketcher.Constraint("DistanceY", 0, 2, -1, 1, 23.0))
sketch2.addConstraint(Sketcher.Constraint("DistanceX", 6, 2, -1, 1, 4.0))
sketch2.setExpression("Constraints[30]", "Params.sketch2_width")
sketch2.setExpression("Constraints[31]", "Params.sketch2_height")
sketch2.setExpression("Constraints[32]", "Params.sketch2_length")
pad2 = body.newObject("PartDesign::Pad", "Pad001")
pad2.Profile = sketch2
pad2.setExpression("Length", "Params.pad2_length")

sketch3 = body.newObject("Sketcher::SketchObject", "Sketch002")
sketch3.AttachmentSupport = (doc.getObject("YZ_Plane"), [""])
sketch3.MapMode = "FlatFace"
sketch3.AttachmentOffset = App.Placement(App.Vector(0, 0, 38), App.Rotation())
add_polygon(sketch3, [(17, 110), (-7, 110), (-10, 100), (-10, -23), (20, -23), (20, 100)])
sketch3.addConstraint(Sketcher.Constraint("Horizontal", 0))
sketch3.addConstraint(Sketcher.Constraint("Vertical", 2))
sketch3.addConstraint(Sketcher.Constraint("Horizontal", 3))
sketch3.addConstraint(Sketcher.Constraint("Vertical", 4))
sketch3.addConstraint(Sketcher.Constraint("Horizontal", 1, 2, 4, 2))
sketch3.addConstraint(Sketcher.Constraint("Equal", 1, 5))
sketch3.addConstraint(Sketcher.Constraint("DistanceX", 0, 2, 0, 1, 24.0))
sketch3.addConstraint(Sketcher.Constraint("DistanceX", 3, 1, 3, 2, 30.0))
sketch3.addConstraint(Sketcher.Constraint("DistanceY", 2, 2, 2, 1, 123.0))
sketch3.addConstraint(Sketcher.Constraint("Distance", 1, 10.0))
sketch3.addConstraint(Sketcher.Constraint("DistanceX", 0, 2, -1, 1, 7.0))
sketch3.addConstraint(Sketcher.Constraint("DistanceY", -1, 1, 1, 2, 100.0))
sketch3.setExpression("Constraints[12]", "Params.sketch3_width")
sketch3.setExpression("Constraints[13]", "Params.sketch3_width2")
sketch3.setExpression("Constraints[14]", "Params.sketch3_height")
sketch3.setExpression("Constraints[15]", "Params.sketch3_length")
pad3 = body.newObject("PartDesign::Pad", "Pad002")
pad3.Profile = sketch3
pad3.setExpression("Length", "Params.pad3_length")
pad3.Reversed = True

sketch4 = body.newObject("Sketcher::SketchObject", "Sketch003")
sketch4.AttachmentSupport = (doc.getObject("XZ_Plane"), [""])
sketch4.MapMode = "FlatFace"
sketch4.AttachmentOffset = App.Placement(App.Vector(0, 0, -20), App.Rotation())
add_polygon(sketch4, [(-3, 95.2), (-3, 110), (38, 110), (38, 108.2)])
sketch4.addConstraint(Sketcher.Constraint("Vertical", 0))
sketch4.addConstraint(Sketcher.Constraint("Horizontal", 1))
sketch4.addConstraint(Sketcher.Constraint("Vertical", 2))
sketch4.addConstraint(Sketcher.Constraint("DistanceX", 1, 1, 1, 2, 41.0))
sketch4.addConstraint(Sketcher.Constraint("DistanceY", 0, 1, 0, 2, 14.8))
sketch4.addConstraint(Sketcher.Constraint("DistanceY", 2, 2, 2, 1, 1.8))
sketch4.addConstraint(Sketcher.Constraint("DistanceX", 0, 2, -1, 1, 3.0))
sketch4.addConstraint(Sketcher.Constraint("DistanceY", -1, 1, 0, 2, 110.0))
sketch4.setExpression("Constraints[7]", "Params.sketch4_width")
sketch4.setExpression("Constraints[8]", "Params.sketch4_height")
sketch4.setExpression("Constraints[9]", "Params.sketch4_height2")
pocket1 = body.newObject("PartDesign::Pocket", "Pocket")
pocket1.Profile = sketch4
pocket1.setExpression("Length", "Params.pocket1_length")
pocket1.Reversed = True

doc.recompute()
